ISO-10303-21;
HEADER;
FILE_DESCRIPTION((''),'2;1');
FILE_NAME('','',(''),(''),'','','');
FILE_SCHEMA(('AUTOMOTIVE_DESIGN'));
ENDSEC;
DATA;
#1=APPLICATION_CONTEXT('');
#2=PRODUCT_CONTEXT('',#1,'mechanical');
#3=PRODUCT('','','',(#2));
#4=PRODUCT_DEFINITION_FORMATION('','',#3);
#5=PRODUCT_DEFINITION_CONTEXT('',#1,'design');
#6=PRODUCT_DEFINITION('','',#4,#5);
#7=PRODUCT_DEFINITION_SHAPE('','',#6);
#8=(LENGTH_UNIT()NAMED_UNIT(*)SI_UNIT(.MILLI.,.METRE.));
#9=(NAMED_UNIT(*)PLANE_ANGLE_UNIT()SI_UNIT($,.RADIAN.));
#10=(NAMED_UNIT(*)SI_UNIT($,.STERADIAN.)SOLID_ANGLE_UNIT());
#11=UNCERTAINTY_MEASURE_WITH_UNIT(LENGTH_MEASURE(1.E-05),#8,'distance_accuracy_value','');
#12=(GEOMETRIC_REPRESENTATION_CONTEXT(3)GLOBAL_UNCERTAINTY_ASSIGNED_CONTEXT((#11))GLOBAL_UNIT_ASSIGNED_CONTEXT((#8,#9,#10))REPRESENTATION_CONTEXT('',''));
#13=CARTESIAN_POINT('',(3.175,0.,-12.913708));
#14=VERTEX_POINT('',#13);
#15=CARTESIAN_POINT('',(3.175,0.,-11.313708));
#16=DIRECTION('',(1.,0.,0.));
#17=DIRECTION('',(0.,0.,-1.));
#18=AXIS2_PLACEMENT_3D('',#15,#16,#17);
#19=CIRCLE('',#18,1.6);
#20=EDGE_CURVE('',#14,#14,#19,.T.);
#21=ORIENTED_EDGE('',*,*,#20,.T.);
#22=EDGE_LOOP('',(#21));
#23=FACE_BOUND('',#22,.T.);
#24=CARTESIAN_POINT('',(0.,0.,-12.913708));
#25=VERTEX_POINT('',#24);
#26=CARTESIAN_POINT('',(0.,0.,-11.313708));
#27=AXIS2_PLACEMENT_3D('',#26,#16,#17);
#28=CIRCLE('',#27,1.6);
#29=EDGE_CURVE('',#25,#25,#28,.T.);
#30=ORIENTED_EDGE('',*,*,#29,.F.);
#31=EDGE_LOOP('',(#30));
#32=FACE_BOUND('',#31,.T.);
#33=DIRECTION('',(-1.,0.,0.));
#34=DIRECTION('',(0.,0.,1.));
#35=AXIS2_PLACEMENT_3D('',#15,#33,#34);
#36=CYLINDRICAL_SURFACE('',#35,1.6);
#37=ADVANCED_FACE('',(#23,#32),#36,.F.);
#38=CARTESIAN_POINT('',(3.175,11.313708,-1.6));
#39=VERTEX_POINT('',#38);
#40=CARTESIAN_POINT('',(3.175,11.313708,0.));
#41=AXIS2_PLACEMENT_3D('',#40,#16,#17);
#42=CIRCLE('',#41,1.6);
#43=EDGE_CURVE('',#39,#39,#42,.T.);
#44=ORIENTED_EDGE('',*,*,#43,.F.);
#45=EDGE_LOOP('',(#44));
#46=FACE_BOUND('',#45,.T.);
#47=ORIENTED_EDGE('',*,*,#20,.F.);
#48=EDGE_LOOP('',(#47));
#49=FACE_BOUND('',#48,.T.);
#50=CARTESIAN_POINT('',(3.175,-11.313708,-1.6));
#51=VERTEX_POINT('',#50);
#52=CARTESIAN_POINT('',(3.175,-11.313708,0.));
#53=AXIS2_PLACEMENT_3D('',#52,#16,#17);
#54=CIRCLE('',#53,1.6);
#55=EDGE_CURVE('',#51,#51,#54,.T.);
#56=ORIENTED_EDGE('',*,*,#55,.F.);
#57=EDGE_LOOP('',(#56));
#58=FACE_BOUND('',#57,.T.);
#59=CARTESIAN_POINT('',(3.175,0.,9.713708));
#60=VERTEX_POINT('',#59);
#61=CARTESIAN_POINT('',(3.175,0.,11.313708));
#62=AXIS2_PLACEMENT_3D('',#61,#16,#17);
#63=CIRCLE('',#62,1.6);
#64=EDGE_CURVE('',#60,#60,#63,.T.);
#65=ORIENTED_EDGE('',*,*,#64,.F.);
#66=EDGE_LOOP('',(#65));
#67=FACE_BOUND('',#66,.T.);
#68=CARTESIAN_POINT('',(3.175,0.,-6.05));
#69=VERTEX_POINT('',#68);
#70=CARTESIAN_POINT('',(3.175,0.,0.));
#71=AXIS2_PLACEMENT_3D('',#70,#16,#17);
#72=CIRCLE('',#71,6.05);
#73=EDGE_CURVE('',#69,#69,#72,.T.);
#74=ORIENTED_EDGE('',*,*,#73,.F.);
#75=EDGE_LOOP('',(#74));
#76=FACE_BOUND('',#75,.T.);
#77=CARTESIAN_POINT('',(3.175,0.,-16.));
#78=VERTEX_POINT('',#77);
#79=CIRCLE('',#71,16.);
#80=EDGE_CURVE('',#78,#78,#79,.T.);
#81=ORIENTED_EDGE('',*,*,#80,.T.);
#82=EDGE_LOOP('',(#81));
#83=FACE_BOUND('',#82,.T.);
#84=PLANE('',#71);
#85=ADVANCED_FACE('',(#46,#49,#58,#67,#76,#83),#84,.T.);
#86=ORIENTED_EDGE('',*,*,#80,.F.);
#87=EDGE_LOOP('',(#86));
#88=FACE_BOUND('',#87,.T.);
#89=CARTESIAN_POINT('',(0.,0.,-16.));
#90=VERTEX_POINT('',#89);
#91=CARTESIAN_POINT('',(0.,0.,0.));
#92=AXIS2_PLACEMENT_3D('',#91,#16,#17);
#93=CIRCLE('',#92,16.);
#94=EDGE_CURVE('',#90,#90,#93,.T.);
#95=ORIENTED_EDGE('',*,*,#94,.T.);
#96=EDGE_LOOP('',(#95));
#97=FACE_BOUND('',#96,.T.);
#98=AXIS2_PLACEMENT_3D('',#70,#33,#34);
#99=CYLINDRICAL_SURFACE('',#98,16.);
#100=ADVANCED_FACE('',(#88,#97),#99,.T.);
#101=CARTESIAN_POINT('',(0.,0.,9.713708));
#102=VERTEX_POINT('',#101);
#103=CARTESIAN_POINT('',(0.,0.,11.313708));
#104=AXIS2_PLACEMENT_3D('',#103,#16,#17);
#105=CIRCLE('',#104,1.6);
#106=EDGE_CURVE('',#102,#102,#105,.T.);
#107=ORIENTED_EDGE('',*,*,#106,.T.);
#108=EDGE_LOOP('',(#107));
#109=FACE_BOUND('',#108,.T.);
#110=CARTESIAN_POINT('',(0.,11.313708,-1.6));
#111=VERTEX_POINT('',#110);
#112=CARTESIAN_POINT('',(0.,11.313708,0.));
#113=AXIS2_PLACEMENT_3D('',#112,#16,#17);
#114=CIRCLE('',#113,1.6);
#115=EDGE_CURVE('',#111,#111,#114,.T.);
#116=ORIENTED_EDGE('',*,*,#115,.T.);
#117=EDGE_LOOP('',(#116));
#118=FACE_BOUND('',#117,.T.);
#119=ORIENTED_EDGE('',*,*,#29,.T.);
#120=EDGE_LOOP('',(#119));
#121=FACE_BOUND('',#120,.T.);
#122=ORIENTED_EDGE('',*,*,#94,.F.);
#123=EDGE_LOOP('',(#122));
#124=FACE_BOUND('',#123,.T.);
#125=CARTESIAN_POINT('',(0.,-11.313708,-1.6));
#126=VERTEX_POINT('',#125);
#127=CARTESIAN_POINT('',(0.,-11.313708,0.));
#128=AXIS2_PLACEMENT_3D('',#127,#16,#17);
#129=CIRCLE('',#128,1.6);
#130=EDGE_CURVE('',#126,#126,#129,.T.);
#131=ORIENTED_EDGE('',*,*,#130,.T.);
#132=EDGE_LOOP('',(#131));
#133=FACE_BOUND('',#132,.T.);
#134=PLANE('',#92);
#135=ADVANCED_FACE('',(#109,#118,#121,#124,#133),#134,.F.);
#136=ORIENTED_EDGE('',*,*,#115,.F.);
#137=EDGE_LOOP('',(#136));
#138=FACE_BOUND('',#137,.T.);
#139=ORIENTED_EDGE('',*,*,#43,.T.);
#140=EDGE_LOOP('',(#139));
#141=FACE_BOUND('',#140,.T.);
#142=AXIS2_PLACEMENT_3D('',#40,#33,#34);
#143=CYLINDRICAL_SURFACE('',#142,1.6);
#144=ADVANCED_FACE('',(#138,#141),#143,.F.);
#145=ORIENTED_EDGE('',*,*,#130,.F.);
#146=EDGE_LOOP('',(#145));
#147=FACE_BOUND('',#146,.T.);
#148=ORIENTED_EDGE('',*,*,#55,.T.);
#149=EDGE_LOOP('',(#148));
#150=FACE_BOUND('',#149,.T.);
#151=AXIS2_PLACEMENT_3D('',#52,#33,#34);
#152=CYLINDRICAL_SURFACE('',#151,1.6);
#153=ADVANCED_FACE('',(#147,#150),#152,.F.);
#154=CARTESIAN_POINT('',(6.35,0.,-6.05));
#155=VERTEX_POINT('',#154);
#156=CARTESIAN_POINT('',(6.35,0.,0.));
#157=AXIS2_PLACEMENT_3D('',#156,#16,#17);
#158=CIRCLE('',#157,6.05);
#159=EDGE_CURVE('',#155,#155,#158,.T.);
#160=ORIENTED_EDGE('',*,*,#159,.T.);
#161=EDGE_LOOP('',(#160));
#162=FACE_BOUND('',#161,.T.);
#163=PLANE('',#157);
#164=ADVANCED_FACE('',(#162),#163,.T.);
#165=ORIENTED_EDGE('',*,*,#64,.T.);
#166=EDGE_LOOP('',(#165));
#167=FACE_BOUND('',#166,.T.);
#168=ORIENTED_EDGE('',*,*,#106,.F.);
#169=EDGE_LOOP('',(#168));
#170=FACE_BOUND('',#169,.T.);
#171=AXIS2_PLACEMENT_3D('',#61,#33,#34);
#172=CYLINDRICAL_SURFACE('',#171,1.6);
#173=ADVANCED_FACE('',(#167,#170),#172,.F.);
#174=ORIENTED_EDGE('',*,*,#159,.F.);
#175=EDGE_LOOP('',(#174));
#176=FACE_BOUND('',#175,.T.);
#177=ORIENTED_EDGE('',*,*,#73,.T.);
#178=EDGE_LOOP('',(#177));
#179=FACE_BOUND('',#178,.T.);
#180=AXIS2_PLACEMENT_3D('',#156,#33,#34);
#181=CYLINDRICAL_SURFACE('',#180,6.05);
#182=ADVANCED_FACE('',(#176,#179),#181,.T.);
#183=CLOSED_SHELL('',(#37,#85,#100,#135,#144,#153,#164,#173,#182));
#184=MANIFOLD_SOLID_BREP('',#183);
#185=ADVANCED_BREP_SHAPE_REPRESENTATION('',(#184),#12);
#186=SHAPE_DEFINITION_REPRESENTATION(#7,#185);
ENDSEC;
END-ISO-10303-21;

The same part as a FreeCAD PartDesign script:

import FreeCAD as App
import Part
import Sketcher

doc = App.newDocument("Part")
body = doc.addObject("PartDesign::Body", "Body")

sketch1 = body.newObject("Sketcher::SketchObject", "Sketch")
sketch1.AttachmentSupport = (doc.getObject("YZ_Plane"), [""])
sketch1.MapMode = "FlatFace"
sketch1.addGeometry([
    Part.Circle(App.Vector(0, 0, 0), App.Vector(0, 0, 1), 16),
    Part.Circle(App.Vector(-11.3, 0, 0), App.Vector(0, 0, 1), 1.6),
    Part.Circle(App.Vector(0, 11.3, 0), App.Vector(0, 0, 1), 1.6),
    Part.Circle(App.Vector(0, -11.3, 0), App.Vector(0, 0, 1), 1.6),
    Part.Circle(App.Vector(11.3, 0, 0), App.Vector(0, 0, 1), 1.6),
], False)
sketch1.addConstraint([
    Sketcher.Constraint("Coincident", 0, 3, -1, 1),
    Sketcher.Constraint("Equal", 1, 2),
    Sketcher.Constraint("Equal", 2, 3),
    Sketcher.Constraint("Equal", 3, 4),
    Sketcher.Constraint("Symmetric", 2, 3, 3, 3, -1, 1),
    Sketcher.Constraint("Symmetric", 1, 3, 4, 3, -1, 1),
    Sketcher.Constraint("PointOnObject", 1, 3, -1),
    Sketcher.Constraint("PointOnObject", 2, 3, -2),
    Sketcher.Constraint("Diameter", 0, 32.0),
    Sketcher.Constraint("Diameter", 1, 3.2),
    Sketcher.Constraint("DistanceX", 1, 3, -1, 1, 11.313708),
    Sketcher.Constraint("DistanceY", -1, 1, 2, 3, 11.313708),
])
pad1 = body.newObject("PartDesign::Pad", "Pad")
pad1.Profile = sketch1
pad1.Length = 3.175

sketch2 = body.newObject("Sketcher::SketchObject", "Sketch001")
sketch2.AttachmentSupport = (doc.getObject("YZ_Plane"), [""])
sketch2.MapMode = "FlatFace"
sketch2.AttachmentOffset = App.Placement(App.Vector(0, 0, 3.175), App.Rotation())
sketch2.addGeometry(Part.Circle(App.Vector(0, 0, 0), App.Vector(0, 0, 1), 6), False)
sketch2.addConstraint([
    Sketcher.Constraint("Coincident", 0, 3, -1, 1),
    Sketcher.Constraint("Diameter", 0, 12.1),
])
pad2 = body.newObject("PartDesign::Pad", "Pad001")
pad2.Profile = sketch2
pad2.Length = 3.175

doc.recompute()
